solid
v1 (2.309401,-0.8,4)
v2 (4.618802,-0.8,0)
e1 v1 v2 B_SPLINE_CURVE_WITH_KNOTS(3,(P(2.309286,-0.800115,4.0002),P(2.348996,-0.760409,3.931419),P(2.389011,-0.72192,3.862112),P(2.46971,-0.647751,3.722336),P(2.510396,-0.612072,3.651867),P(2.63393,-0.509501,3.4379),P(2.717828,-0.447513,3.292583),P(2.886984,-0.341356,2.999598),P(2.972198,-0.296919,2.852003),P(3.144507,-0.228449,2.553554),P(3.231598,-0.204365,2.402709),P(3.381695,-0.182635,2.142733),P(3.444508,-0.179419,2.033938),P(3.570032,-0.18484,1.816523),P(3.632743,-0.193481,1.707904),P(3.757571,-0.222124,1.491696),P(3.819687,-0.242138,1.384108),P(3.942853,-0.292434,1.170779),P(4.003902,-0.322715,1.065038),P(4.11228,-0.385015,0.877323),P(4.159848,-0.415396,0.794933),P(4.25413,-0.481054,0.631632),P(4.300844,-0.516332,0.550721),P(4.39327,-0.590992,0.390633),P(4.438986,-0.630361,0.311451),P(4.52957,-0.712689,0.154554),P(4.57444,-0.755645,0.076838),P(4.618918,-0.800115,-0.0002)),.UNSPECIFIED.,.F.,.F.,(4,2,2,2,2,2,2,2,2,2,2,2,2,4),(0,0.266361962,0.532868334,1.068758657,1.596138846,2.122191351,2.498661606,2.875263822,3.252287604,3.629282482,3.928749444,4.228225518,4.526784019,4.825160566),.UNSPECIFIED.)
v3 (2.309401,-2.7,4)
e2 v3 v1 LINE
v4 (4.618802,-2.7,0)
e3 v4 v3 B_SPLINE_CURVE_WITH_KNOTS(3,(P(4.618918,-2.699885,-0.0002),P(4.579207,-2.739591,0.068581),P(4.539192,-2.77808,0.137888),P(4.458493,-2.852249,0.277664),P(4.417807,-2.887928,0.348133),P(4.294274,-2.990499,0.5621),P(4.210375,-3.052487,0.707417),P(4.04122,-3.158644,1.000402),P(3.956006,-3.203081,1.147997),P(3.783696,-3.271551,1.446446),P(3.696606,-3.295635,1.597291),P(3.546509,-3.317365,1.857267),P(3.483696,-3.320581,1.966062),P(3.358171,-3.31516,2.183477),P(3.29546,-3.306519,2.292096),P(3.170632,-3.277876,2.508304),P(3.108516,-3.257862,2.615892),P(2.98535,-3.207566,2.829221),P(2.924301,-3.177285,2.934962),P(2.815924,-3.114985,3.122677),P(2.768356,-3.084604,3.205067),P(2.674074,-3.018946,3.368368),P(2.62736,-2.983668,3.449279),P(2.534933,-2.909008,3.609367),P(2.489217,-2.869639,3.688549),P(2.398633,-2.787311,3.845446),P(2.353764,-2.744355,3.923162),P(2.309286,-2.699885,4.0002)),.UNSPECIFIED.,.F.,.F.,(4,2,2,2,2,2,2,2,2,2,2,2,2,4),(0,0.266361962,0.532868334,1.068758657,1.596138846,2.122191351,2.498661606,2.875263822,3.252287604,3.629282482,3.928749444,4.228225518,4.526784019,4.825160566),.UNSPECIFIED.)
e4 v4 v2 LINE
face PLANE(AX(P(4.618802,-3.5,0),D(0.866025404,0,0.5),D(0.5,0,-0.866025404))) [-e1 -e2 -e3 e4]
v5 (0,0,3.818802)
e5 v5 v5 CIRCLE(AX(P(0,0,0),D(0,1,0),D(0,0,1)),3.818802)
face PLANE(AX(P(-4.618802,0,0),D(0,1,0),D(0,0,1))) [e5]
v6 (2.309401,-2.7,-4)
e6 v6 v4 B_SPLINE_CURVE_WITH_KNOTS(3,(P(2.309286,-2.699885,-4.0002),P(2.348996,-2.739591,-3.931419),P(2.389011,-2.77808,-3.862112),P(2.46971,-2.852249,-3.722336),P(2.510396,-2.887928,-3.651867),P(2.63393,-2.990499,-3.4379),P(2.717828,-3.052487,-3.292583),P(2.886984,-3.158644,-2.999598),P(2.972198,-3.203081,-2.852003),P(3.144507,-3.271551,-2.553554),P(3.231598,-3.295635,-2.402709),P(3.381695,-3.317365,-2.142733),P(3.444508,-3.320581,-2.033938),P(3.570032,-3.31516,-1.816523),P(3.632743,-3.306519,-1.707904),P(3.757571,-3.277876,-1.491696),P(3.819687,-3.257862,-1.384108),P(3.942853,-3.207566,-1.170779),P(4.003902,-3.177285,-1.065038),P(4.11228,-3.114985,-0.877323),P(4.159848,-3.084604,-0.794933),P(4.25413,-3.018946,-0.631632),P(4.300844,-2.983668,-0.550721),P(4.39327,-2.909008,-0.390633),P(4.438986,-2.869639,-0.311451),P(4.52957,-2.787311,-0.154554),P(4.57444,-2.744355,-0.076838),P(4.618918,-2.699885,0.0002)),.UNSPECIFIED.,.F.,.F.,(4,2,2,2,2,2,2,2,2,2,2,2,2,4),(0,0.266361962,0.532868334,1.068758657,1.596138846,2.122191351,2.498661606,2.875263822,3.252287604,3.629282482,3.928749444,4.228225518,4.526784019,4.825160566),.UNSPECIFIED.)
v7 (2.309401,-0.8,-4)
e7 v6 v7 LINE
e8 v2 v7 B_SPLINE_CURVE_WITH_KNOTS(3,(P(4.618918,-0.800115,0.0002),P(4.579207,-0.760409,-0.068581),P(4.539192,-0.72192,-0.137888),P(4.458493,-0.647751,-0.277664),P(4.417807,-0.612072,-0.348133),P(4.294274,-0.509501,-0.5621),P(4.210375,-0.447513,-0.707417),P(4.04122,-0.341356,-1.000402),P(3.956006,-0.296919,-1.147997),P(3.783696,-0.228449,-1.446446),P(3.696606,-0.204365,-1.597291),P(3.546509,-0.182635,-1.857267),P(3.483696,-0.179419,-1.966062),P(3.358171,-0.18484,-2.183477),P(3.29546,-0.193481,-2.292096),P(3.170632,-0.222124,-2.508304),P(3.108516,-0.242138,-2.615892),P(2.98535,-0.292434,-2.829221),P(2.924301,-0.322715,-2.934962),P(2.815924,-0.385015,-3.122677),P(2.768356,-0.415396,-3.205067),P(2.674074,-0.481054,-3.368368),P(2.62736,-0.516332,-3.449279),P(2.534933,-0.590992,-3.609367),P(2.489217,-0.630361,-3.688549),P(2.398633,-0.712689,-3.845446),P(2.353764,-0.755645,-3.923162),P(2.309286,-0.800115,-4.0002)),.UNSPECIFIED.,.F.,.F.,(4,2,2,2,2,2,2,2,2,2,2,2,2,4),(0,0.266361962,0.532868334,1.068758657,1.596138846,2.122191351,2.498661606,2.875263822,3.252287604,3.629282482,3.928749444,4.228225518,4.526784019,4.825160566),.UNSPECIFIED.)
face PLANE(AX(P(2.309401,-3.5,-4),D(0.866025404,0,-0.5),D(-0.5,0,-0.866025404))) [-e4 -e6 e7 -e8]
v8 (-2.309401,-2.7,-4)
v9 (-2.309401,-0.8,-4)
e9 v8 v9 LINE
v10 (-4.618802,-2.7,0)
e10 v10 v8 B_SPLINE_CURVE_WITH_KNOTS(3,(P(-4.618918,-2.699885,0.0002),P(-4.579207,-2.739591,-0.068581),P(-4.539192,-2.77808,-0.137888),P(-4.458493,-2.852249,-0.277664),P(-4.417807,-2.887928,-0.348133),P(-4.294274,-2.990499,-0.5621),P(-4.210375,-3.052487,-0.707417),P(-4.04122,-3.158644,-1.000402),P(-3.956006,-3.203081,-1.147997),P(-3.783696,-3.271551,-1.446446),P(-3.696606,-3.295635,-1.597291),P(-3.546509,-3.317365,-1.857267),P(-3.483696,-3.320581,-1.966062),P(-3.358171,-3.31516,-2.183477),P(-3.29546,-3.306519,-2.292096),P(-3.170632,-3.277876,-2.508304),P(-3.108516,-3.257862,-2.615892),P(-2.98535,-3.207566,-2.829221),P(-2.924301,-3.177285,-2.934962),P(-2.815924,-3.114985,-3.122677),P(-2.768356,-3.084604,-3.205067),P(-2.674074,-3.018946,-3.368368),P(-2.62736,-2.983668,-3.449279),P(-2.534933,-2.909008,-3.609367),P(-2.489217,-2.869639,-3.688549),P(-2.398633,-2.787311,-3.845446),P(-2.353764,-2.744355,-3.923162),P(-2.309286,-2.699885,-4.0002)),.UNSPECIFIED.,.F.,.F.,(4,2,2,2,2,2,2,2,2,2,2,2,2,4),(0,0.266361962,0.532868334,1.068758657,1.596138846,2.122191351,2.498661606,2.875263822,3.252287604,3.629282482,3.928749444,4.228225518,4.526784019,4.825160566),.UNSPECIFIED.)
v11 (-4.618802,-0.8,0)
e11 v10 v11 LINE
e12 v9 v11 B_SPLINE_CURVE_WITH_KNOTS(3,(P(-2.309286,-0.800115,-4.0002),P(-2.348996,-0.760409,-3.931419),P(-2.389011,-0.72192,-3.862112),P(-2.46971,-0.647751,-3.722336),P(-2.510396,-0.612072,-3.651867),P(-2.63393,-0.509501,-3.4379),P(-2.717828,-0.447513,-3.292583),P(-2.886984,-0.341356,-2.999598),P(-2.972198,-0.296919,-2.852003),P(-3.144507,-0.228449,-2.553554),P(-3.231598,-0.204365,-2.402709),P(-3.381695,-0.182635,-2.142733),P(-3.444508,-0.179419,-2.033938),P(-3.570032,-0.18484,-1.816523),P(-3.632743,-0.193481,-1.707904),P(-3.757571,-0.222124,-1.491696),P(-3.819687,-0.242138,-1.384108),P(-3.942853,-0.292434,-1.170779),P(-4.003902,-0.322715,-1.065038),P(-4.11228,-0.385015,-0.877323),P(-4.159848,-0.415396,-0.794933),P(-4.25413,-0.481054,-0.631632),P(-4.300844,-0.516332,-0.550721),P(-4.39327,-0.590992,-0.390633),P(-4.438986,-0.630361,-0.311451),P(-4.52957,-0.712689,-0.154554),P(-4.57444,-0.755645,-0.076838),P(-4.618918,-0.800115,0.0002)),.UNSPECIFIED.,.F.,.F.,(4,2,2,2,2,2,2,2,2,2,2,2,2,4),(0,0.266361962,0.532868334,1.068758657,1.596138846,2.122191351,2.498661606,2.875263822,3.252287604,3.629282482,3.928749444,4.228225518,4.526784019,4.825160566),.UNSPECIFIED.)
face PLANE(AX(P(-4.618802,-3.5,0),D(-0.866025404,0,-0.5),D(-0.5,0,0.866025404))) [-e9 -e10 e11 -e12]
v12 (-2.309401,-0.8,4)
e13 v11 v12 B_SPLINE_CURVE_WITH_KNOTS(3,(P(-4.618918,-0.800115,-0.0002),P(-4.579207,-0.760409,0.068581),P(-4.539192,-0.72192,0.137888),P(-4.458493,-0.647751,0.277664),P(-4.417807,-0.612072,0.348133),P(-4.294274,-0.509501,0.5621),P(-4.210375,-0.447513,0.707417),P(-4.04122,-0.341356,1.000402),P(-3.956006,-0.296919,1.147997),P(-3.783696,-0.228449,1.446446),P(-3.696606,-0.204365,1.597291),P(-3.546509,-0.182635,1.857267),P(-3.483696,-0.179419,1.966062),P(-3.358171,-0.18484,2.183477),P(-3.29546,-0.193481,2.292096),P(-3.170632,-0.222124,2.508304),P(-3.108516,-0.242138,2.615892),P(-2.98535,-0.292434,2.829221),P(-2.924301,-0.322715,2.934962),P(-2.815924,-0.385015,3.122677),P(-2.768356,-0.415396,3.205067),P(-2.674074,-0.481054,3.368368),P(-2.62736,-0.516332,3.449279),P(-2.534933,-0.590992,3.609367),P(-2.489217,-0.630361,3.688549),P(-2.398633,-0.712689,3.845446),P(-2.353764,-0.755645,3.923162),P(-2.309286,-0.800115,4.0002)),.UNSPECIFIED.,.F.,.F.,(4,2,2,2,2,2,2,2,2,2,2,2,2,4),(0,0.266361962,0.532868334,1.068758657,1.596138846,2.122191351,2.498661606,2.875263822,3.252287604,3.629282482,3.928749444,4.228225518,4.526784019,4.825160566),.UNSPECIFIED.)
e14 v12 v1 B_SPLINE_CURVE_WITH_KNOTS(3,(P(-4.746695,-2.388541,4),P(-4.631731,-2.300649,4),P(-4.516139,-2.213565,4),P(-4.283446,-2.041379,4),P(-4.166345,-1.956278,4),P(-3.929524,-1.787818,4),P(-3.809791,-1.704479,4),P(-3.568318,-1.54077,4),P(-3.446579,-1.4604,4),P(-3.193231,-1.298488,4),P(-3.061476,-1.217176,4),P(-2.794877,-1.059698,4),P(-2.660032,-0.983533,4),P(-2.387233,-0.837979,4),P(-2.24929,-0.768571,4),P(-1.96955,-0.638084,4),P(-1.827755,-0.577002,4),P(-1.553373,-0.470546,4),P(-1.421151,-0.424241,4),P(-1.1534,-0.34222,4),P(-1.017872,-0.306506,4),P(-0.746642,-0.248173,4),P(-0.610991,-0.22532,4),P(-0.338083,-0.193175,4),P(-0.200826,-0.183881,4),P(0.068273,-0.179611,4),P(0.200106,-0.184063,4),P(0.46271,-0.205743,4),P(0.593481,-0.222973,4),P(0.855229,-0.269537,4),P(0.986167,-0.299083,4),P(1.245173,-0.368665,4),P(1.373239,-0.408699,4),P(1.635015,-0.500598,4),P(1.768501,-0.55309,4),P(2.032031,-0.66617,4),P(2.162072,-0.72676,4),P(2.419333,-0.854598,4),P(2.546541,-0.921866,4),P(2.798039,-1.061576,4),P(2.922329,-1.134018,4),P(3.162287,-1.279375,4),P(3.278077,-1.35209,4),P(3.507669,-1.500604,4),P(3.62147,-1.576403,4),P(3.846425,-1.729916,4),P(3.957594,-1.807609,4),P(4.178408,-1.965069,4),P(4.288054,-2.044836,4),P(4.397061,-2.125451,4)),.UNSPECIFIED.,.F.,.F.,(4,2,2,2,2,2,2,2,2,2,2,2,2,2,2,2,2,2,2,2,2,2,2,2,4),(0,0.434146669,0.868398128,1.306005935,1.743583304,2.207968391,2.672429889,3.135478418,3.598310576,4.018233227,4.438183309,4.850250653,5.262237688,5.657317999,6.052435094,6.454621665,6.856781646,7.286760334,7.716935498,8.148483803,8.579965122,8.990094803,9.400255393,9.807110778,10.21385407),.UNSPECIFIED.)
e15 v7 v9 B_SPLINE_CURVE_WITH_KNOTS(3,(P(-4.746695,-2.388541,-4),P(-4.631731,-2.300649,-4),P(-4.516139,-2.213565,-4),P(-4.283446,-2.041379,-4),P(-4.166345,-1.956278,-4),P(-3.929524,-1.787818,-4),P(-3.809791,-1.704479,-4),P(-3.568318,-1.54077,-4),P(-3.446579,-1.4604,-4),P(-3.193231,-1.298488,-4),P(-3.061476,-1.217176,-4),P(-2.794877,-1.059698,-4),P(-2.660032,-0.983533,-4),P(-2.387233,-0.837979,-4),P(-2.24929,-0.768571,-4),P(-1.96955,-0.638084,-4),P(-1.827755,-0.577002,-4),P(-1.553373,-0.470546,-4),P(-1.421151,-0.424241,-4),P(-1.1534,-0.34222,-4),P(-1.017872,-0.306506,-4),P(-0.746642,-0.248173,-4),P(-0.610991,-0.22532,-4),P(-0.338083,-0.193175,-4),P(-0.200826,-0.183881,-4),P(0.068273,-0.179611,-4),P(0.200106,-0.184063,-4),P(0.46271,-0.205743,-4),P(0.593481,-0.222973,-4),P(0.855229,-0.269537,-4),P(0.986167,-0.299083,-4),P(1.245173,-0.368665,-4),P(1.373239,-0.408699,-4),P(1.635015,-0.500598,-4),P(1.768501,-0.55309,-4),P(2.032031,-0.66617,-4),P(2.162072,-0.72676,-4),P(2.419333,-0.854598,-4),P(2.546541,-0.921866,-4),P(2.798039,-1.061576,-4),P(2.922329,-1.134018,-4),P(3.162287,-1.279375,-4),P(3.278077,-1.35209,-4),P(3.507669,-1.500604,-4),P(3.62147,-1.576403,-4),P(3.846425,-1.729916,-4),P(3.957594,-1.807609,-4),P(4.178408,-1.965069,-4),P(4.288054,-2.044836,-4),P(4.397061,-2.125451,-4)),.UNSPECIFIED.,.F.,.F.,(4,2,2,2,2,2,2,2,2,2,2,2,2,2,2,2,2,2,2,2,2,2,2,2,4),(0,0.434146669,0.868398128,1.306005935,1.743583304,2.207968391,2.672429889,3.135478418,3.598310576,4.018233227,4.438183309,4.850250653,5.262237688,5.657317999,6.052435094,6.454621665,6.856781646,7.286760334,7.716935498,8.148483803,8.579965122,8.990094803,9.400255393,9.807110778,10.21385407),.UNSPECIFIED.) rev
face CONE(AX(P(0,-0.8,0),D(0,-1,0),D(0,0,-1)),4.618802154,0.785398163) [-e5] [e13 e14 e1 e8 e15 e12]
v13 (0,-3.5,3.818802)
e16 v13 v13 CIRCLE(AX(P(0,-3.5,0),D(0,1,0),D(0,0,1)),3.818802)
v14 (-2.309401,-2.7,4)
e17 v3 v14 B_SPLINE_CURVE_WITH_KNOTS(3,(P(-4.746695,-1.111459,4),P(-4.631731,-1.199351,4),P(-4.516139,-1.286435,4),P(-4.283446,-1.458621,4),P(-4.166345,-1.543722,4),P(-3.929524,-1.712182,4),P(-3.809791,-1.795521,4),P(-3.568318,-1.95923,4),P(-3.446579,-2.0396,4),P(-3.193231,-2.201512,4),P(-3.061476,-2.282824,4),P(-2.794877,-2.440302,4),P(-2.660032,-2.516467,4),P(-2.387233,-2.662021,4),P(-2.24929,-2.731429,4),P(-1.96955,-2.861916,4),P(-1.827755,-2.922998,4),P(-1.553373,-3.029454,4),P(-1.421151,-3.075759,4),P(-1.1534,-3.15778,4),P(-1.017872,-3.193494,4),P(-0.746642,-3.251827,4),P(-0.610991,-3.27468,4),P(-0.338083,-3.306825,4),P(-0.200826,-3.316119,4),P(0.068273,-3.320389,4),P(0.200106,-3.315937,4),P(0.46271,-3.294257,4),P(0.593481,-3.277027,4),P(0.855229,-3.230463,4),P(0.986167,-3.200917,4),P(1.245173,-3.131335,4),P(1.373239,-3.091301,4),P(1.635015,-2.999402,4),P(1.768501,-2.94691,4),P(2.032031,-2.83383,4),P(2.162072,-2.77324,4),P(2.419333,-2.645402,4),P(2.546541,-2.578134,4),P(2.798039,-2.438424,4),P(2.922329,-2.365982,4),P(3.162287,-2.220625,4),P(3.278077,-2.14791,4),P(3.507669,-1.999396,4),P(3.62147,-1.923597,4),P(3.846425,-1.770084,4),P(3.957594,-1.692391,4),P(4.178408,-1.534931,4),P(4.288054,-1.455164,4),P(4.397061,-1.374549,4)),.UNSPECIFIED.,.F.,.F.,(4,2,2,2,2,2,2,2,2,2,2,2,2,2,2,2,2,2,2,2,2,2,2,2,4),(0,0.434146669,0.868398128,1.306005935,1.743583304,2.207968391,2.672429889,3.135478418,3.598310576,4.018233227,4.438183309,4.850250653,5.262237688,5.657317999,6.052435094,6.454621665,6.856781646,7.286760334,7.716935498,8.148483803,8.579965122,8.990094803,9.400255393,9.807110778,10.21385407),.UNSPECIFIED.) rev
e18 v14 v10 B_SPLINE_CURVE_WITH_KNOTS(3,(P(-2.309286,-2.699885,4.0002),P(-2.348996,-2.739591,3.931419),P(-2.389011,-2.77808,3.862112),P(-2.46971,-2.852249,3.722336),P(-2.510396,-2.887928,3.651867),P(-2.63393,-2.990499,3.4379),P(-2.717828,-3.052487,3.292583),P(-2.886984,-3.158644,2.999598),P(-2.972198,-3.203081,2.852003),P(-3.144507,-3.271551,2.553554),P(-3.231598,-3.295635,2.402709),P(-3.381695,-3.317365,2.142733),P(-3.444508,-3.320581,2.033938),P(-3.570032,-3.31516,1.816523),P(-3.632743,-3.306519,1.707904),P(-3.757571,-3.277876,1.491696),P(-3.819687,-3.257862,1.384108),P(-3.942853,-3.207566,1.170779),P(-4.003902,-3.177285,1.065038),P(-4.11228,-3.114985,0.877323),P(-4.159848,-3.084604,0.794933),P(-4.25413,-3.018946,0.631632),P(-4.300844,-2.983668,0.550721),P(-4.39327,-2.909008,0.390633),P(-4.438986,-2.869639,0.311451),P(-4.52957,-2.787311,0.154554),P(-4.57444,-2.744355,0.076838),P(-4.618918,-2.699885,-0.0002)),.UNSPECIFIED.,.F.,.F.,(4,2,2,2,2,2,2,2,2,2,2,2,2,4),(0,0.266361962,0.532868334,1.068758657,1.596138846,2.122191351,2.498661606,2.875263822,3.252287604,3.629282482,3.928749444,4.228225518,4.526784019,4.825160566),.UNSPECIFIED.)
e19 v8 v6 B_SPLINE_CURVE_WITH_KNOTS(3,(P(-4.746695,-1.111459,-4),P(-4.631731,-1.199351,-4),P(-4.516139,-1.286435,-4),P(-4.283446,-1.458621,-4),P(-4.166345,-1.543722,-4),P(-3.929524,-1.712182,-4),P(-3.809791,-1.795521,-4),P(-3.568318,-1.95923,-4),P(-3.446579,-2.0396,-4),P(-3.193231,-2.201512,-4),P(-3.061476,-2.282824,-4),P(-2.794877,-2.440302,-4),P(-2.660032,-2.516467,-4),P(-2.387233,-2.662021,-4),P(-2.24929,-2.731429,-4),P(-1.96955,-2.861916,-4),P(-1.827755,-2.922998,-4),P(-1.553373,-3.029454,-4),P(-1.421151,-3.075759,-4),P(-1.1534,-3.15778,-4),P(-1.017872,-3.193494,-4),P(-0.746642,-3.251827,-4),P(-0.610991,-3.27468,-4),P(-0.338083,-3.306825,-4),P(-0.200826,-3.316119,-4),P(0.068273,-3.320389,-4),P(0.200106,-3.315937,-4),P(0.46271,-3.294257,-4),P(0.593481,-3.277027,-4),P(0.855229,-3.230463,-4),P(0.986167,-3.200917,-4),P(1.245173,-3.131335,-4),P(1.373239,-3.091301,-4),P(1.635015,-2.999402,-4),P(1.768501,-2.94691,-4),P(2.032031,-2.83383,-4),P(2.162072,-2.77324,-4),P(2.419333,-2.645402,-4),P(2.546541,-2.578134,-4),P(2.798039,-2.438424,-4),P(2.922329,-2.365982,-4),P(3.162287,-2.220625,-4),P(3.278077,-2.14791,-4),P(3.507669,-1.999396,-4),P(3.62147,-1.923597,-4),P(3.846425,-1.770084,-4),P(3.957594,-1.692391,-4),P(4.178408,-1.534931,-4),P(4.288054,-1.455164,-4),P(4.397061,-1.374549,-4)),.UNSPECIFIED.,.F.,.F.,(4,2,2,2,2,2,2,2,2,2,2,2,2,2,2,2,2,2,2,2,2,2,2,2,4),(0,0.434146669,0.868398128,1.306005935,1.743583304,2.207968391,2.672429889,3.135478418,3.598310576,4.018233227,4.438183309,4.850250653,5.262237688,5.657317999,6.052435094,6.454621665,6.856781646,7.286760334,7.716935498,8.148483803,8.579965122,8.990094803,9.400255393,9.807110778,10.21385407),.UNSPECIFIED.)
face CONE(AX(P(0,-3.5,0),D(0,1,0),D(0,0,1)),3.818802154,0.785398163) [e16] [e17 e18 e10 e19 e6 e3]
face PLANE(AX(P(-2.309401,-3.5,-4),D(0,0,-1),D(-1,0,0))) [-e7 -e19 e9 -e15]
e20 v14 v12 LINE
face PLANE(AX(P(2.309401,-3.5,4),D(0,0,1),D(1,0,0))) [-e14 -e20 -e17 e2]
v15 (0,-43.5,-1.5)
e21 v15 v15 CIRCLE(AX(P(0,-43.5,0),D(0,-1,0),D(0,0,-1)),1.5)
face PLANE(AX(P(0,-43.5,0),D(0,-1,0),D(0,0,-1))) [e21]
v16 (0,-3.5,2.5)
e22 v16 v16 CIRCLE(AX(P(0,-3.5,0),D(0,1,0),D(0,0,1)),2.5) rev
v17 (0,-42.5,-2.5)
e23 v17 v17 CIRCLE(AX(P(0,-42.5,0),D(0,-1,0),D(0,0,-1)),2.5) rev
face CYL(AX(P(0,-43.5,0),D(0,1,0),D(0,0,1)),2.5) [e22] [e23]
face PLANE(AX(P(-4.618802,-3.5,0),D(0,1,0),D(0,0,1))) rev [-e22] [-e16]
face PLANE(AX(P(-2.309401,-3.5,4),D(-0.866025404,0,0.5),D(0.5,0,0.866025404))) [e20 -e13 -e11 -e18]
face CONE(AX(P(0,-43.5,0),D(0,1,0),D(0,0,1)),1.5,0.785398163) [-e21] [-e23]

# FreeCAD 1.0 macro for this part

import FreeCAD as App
import Part
import Sketcher
from FreeCAD import Vector
Q = App.Units.Quantity


def edges_at(feature, points):
    """Names of the edges that pass closest to the given points."""
    edges = feature.Shape.Edges
    near = lambda p: min(range(len(edges)), key=lambda i: edges[i].distToShape(Part.Vertex(*p))[0])
    return sorted({f"Edge{near(p) + 1}" for p in points})

doc = App.newDocument("Part")
body = doc.addObject("PartDesign::Body", "Body")

# Sketch on XZ plane
sketch1 = body.newObject("Sketcher::SketchObject", "Sketch")
sketch1.AttachmentSupport = (doc.getObject("XZ_Plane"), [""])
sketch1.MapMode = "FlatFace"
sketch1.addGeometry([
    Part.LineSegment(Vector(2.3, -4, 0), Vector(-2.3, -4, 0)),  # 0
    Part.LineSegment(Vector(-2.3, -4, 0), Vector(-4.6, 0, 0)),  # 1
    Part.LineSegment(Vector(-4.6, 0, 0), Vector(-2.3, 4, 0)),  # 2
    Part.LineSegment(Vector(-2.3, 4, 0), Vector(2.3, 4, 0)),  # 3
    Part.LineSegment(Vector(2.3, 4, 0), Vector(4.6, 0, 0)),  # 4
    Part.LineSegment(Vector(4.6, 0, 0), Vector(2.3, -4, 0)),  # 5
], False)
sketch1.addConstraint([
    Sketcher.Constraint("Coincident", 0, 2, 1, 1),
    Sketcher.Constraint("Coincident", 1, 2, 2, 1),
    Sketcher.Constraint("Coincident", 2, 2, 3, 1),
    Sketcher.Constraint("Coincident", 3, 2, 4, 1),
    Sketcher.Constraint("Coincident", 4, 2, 5, 1),
    Sketcher.Constraint("Coincident", 5, 2, 0, 1),
    Sketcher.Constraint("Horizontal", 0),
    Sketcher.Constraint("Horizontal", 3),
    Sketcher.Constraint("Symmetric", 0, 2, 3, 2, -1, 1),
    Sketcher.Constraint("Symmetric", 1, 2, 4, 2, -1, 1),
    Sketcher.Constraint("PointOnObject", 1, 2, -1),
    Sketcher.Constraint("Parallel", 2, 5),
    Sketcher.Constraint("Vertical", 0, 2, 2, 2),
    Sketcher.Constraint("Angle", 1, Q("120 deg")),
    Sketcher.Constraint("DistanceY", 0, 2, -1, 1, Q("4 mm")),
    Sketcher.Constraint("DistanceX", 0, 2, -1, 1, Q("2.309401 mm")),
])
pad1 = body.newObject("PartDesign::Pad", "Pad")
pad1.Profile = sketch1
pad1.Length = 3.5

# Sketch on XZ plane
sketch2 = body.newObject("Sketcher::SketchObject", "Sketch001")
sketch2.AttachmentSupport = (doc.getObject("XZ_Plane"), [""])
sketch2.MapMode = "FlatFace"
sketch2.AttachmentOffset = App.Placement(Vector(0, 0, 3.5), App.Rotation())
sketch2.addGeometry(Part.Circle(Vector(0, 0, 0), Vector(0, 0, 1), 2.5), False)
sketch2.addConstraint([
    Sketcher.Constraint("Coincident", 0, 3, -1, 1),
    Sketcher.Constraint("Diameter", 0, Q("5 mm")),
])
pad2 = body.newObject("PartDesign::Pad", "Pad001")
pad2.Profile = sketch2
pad2.Length = 40
doc.recompute()

chamfer = body.newObject("PartDesign::Chamfer", "Chamfer")
chamfer.Base = (pad2, edges_at(pad2, [(0, -43.5, -2.5)]))
chamfer.Size = 1

# Sketch on XY plane
sketch3 = body.newObject("Sketcher::SketchObject", "Sketch002")
sketch3.AttachmentSupport = (doc.getObject("XY_Plane"), [""])
sketch3.MapMode = "FlatFace"
sketch3.addGeometry([
    Part.LineSegment(Vector(-4.6, -0.8, 0), Vector(-3.8, 0, 0)),  # 0
    Part.LineSegment(Vector(-3.8, 0, 0), Vector(-4.6, 0, 0)),  # 1
    Part.LineSegment(Vector(-4.6, 0, 0), Vector(-4.6, -0.8, 0)),  # 2
    Part.LineSegment(Vector(-3.8, -3.5, 0), Vector(-4.6, -2.7, 0)),  # 3
    Part.LineSegment(Vector(-4.6, -2.7, 0), Vector(-4.6, -3.5, 0)),  # 4
    Part.LineSegment(Vector(-4.6, -3.5, 0), Vector(-3.8, -3.5, 0)),  # 5
], False)
sketch3.addConstraint([
    Sketcher.Constraint("Coincident", 0, 2, 1, 1),
    Sketcher.Constraint("Coincident", 1, 2, 2, 1),
    Sketcher.Constraint("Coincident", 2, 2, 0, 1),
    Sketcher.Constraint("Coincident", 3, 2, 4, 1),
    Sketcher.Constraint("Coincident", 4, 2, 5, 1),
    Sketcher.Constraint("Coincident", 5, 2, 3, 1),
    Sketcher.Constraint("Horizontal", 1),
    Sketcher.Constraint("Vertical", 2),
    Sketcher.Constraint("Vertical", 4),
    Sketcher.Constraint("Horizontal", 5),
    Sketcher.Constraint("PointOnObject", 0, 2, -1),
    Sketcher.Constraint("Perpendicular", 0, 3),
    Sketcher.Constraint("Vertical", 2, 2, 3, 2),
    Sketcher.Constraint("Vertical", 0, 2, 5, 2),
    Sketcher.Constraint("Equal", 5, 2),
    Sketcher.Constraint("DistanceX", 1, 2, 1, 1, Q("0.8 mm")),
    Sketcher.Constraint("DistanceY", 3, 2, -1, 1, Q("2.7 mm")),
    Sketcher.Constraint("DistanceX", 0, 2, -1, 1, Q("3.818802 mm")),
])
groove = body.newObject("PartDesign::Groove", "Groove")
groove.Profile = sketch3
groove.ReferenceAxis = (sketch3, ["V_Axis"])
groove.Angle = 360

doc.recompute()
